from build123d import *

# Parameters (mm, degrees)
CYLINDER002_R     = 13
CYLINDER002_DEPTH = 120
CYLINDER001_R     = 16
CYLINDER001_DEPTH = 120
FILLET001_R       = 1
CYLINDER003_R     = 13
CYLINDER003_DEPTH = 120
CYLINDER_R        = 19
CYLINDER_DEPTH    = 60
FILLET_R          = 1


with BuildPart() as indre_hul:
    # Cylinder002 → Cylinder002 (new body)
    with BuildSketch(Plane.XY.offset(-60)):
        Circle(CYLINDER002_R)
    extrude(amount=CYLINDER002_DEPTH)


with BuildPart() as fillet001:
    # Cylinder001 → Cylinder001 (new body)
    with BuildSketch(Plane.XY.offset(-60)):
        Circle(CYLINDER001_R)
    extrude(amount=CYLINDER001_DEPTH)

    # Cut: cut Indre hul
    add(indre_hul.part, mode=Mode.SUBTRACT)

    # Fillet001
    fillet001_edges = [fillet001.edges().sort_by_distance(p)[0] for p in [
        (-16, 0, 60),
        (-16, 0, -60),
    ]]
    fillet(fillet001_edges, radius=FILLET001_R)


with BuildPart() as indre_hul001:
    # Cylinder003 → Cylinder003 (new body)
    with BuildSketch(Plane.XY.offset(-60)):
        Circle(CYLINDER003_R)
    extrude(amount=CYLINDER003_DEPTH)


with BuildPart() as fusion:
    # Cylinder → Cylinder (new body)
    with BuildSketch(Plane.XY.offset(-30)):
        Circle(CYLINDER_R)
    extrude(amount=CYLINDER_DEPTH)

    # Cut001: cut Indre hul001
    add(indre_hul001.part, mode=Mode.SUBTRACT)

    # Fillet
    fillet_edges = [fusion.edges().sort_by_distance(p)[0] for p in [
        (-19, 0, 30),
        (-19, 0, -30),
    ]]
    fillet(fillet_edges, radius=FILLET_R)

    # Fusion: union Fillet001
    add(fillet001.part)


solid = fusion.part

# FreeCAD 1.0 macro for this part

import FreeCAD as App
import Part
import Sketcher

V = App.Vector


def edges_at(feature, points):
    """Names of the edges that pass closest to the given points."""
    edges = feature.Shape.Edges
    near = lambda p: min(range(len(edges)), key=lambda i: edges[i].distToShape(Part.Vertex(*p))[0])
    return sorted({f"Edge{near(p) + 1}" for p in points})

doc = App.newDocument("Part")
body = doc.addObject("PartDesign::Body", "Body")

sketch1 = body.newObject("Sketcher::SketchObject", "Sketch")
sketch1.AttachmentSupport = (doc.getObject("XY_Plane"), [""])
sketch1.MapMode = "FlatFace"
sketch1.AttachmentOffset = App.Placement(V(0, 0, -60), App.Rotation())
sketch1.addGeometry(Part.Circle(V(0, 0, 0), V(0, 0, 1), 13), False)
sketch1.addConstraint([
    Sketcher.Constraint("Coincident", 0, 3, -1, 1),
    Sketcher.Constraint("Diameter", 0, 26.0),
])
pad1 = body.newObject("PartDesign::Pad", "Pad")
pad1.Profile = sketch1
pad1.Length = 120
body2 = doc.addObject("PartDesign::Body", "Body001")

sketch2 = body2.newObject("Sketcher::SketchObject", "Sketch001")
sketch2.AttachmentSupport = (doc.getObject("XY_Plane001"), [""])
sketch2.MapMode = "FlatFace"
sketch2.AttachmentOffset = App.Placement(V(0, 0, -60), App.Rotation())
sketch2.addGeometry(Part.Circle(V(0, 0, 0), V(0, 0, 1), 16), False)
sketch2.addConstraint([
    Sketcher.Constraint("Coincident", 0, 3, -1, 1),
    Sketcher.Constraint("Diameter", 0, 32.0),
])
pad2 = body2.newObject("PartDesign::Pad", "Pad001")
pad2.Profile = sketch2
pad2.Length = 120
doc.recompute()

boolean = body2.newObject("PartDesign::Boolean", "Boolean")
boolean.Type = "Cut"
boolean.addObjects([body])
doc.recompute()

fillet = body2.newObject("PartDesign::Fillet", "Fillet")
fillet.Base = (boolean, edges_at(boolean, [(-16, 0, 60), (-16, 0, -60)]))
fillet.Radius = 1
body3 = doc.addObject("PartDesign::Body", "Body002")

sketch3 = body3.newObject("Sketcher::SketchObject", "Sketch002")
sketch3.AttachmentSupport = (doc.getObject("XY_Plane002"), [""])
sketch3.MapMode = "FlatFace"
sketch3.AttachmentOffset = App.Placement(V(0, 0, -60), App.Rotation())
sketch3.addGeometry(Part.Circle(V(0, 0, 0), V(0, 0, 1), 13), False)
sketch3.addConstraint([
    Sketcher.Constraint("Coincident", 0, 3, -1, 1),
    Sketcher.Constraint("Diameter", 0, 26.0),
])
pad3 = body3.newObject("PartDesign::Pad", "Pad002")
pad3.Profile = sketch3
pad3.Length = 120
body4 = doc.addObject("PartDesign::Body", "Body003")

sketch4 = body4.newObject("Sketcher::SketchObject", "Sketch003")
sketch4.AttachmentSupport = (doc.getObject("XY_Plane003"), [""])
sketch4.MapMode = "FlatFace"
sketch4.AttachmentOffset = App.Placement(V(0, 0, -30), App.Rotation())
sketch4.addGeometry(Part.Circle(V(0, 0, 0), V(0, 0, 1), 19), False)
sketch4.addConstraint([
    Sketcher.Constraint("Coincident", 0, 3, -1, 1),
    Sketcher.Constraint("Diameter", 0, 38.0),
])
pad4 = body4.newObject("PartDesign::Pad", "Pad003")
pad4.Profile = sketch4
pad4.Length = 60
doc.recompute()

boolean2 = body4.newObject("PartDesign::Boolean", "Boolean001")
boolean2.Type = "Cut"
boolean2.addObjects([body3])
doc.recompute()

fillet2 = body4.newObject("PartDesign::Fillet", "Fillet001")
fillet2.Base = (boolean2, edges_at(boolean2, [(-19, 0, 30), (-19, 0, -30)]))
fillet2.Radius = 1
doc.recompute()

boolean3 = body4.newObject("PartDesign::Boolean", "Boolean002")
boolean3.Type = "Fuse"
boolean3.addObjects([body2])

doc.recompute()
